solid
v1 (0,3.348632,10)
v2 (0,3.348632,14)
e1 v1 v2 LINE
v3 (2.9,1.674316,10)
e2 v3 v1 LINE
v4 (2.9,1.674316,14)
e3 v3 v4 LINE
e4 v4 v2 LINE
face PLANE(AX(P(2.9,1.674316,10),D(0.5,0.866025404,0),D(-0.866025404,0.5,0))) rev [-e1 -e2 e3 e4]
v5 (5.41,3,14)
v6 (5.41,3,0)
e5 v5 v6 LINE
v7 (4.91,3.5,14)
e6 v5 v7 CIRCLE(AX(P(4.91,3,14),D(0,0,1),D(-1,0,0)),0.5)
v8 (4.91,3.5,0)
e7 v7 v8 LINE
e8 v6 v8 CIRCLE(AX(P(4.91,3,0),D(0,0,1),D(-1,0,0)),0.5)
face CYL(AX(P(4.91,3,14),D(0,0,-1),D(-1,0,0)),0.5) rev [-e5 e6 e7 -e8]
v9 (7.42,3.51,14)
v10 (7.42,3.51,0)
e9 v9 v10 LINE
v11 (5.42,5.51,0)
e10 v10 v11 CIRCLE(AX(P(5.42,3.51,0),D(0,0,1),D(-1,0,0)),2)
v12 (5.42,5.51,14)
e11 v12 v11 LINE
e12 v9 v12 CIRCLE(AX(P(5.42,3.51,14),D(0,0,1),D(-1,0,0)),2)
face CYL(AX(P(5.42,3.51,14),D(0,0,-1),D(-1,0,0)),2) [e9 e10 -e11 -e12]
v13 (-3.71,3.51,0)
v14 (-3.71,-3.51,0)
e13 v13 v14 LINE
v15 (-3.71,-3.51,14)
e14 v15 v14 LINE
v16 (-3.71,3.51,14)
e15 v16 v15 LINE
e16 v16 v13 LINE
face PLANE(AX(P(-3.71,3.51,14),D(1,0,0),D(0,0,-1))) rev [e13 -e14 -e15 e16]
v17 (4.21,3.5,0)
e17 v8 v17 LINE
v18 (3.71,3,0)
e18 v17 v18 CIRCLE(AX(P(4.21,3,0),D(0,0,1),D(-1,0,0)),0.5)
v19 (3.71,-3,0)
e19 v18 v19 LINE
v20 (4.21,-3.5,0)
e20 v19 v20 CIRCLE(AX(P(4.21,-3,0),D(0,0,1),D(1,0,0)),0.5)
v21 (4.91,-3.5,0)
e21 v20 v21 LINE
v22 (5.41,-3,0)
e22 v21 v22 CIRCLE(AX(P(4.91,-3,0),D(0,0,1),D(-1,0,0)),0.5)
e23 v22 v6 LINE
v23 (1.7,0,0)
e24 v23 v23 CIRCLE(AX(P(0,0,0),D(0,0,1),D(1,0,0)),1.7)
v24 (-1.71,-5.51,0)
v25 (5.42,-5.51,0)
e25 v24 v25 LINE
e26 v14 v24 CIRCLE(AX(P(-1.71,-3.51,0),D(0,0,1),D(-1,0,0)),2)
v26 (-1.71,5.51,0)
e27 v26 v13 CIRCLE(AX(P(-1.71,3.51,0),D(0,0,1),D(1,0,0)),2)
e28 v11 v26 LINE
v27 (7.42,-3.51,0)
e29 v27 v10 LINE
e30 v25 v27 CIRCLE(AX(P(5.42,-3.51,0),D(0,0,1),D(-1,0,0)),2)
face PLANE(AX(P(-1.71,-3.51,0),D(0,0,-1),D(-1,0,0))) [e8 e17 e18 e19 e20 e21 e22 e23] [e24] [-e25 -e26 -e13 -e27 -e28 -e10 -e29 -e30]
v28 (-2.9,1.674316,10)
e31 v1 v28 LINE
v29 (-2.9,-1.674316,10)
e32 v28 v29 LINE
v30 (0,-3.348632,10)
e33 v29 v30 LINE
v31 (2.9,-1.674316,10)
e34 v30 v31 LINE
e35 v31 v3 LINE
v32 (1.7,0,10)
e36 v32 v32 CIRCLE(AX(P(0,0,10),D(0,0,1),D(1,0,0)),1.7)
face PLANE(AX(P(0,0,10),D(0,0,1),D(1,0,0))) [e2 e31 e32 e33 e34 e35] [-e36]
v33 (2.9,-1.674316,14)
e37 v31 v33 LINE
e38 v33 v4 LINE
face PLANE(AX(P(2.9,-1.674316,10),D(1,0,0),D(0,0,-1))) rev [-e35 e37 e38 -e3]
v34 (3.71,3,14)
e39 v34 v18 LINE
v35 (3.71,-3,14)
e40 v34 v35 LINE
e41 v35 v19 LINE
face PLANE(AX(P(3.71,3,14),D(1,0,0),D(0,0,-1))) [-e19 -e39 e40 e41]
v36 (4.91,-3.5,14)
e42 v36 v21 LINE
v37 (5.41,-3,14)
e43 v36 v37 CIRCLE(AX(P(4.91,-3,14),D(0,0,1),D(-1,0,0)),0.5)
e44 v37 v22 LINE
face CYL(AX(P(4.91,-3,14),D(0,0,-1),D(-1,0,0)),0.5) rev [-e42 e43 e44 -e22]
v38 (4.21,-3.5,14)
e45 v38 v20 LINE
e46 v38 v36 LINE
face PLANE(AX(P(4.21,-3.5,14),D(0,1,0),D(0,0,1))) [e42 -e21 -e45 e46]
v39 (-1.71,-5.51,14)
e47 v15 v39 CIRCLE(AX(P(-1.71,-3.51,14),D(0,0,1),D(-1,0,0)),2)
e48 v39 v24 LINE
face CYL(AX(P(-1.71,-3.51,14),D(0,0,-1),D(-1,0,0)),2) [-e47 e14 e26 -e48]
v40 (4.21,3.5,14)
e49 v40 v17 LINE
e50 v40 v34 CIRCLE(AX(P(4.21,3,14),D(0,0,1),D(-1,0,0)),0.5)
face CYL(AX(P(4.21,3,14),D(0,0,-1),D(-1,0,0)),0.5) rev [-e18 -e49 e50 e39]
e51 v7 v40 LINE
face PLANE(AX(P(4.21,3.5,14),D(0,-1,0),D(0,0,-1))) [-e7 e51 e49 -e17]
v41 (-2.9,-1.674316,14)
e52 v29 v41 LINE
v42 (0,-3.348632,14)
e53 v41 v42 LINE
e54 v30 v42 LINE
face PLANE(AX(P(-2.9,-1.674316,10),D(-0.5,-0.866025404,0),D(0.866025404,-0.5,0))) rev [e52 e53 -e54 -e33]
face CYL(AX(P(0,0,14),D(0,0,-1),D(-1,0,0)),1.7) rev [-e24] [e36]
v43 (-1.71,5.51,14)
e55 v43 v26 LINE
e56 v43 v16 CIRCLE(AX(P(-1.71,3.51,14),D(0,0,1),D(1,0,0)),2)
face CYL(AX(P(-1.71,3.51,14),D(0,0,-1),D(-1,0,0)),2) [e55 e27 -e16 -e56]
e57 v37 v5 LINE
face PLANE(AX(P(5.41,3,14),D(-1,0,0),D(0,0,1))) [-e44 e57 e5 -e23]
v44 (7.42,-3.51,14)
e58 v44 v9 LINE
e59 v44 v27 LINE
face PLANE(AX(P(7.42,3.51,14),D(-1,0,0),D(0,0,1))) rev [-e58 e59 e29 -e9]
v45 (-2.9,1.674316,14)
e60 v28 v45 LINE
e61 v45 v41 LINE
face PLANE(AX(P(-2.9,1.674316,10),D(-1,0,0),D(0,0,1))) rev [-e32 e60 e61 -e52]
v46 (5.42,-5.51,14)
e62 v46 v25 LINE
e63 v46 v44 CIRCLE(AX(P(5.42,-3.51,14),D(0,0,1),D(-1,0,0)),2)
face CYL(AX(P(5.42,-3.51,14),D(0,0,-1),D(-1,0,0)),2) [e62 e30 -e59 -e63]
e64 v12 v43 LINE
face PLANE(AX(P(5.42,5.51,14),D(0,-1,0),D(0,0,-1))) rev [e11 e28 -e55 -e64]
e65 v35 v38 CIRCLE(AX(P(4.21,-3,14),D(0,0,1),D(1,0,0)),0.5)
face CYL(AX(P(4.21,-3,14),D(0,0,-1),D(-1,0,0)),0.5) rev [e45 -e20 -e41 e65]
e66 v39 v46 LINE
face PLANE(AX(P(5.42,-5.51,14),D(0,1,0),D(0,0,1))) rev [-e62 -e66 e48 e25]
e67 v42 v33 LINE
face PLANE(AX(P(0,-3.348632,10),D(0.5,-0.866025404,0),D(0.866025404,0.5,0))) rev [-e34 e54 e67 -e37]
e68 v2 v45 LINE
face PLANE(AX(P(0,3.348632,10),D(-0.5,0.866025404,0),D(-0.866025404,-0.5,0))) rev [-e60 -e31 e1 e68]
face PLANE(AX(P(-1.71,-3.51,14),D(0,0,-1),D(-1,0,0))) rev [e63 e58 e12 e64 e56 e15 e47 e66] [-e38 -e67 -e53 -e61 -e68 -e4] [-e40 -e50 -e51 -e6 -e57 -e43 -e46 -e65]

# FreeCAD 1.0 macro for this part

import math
import FreeCAD as App
import Part
import Sketcher
Q = App.Units.Quantity

doc = App.newDocument("Part")
body = doc.addObject("PartDesign::Body", "Body")

sketch1 = body.newObject("Sketcher::SketchObject", "Sketch")
sketch1.AttachmentSupport = (doc.getObject("XY_Plane"), [""])
sketch1.MapMode = "FlatFace"
sketch1.addGeometry(Part.LineSegment(App.Vector(5.42, 5.51, 0), App.Vector(-1.71, 5.51, 0)), False)
sketch1.addGeometry(Part.ArcOfCircle(Part.Circle(App.Vector(-1.71, 3.51, 0), App.Vector(0, 0, 1), 2), math.radians(90), math.radians(180)), False)
sketch1.addGeometry(Part.LineSegment(App.Vector(-3.71, 3.51, 0), App.Vector(-3.71, -3.51, 0)), False)
sketch1.addGeometry(Part.ArcOfCircle(Part.Circle(App.Vector(-1.71, -3.51, 0), App.Vector(0, 0, 1), 2), math.radians(-180), math.radians(-90)), False)
sketch1.addGeometry(Part.LineSegment(App.Vector(-1.71, -5.51, 0), App.Vector(5.42, -5.51, 0)), False)
sketch1.addGeometry(Part.ArcOfCircle(Part.Circle(App.Vector(5.42, -3.51, 0), App.Vector(0, 0, 1), 2), math.radians(-90), math.radians(0)), False)
sketch1.addGeometry(Part.LineSegment(App.Vector(7.42, -3.51, 0), App.Vector(7.42, 3.51, 0)), False)
sketch1.addGeometry(Part.ArcOfCircle(Part.Circle(App.Vector(5.42, 3.51, 0), App.Vector(0, 0, 1), 2), math.radians(0), math.radians(90)), False)
sketch1.addGeometry(Part.Circle(App.Vector(0, 0, 0), App.Vector(0, 0, 1), 1.7), False)
sketch1.addGeometry(Part.ArcOfCircle(Part.Circle(App.Vector(4.21, 3, 0), App.Vector(0, 0, 1), 0.5), math.radians(90), math.radians(180)), False)
sketch1.addGeometry(Part.LineSegment(App.Vector(4.21, 3.5, 0), App.Vector(4.91, 3.5, 0)), False)
sketch1.addGeometry(Part.ArcOfCircle(Part.Circle(App.Vector(4.91, 3, 0), App.Vector(0, 0, 1), 0.5), math.radians(0), math.radians(90)), False)
sketch1.addGeometry(Part.LineSegment(App.Vector(5.41, 3, 0), App.Vector(5.41, -3, 0)), False)
sketch1.addGeometry(Part.ArcOfCircle(Part.Circle(App.Vector(4.91, -3, 0), App.Vector(0, 0, 1), 0.5), math.radians(-90), math.radians(0)), False)
sketch1.addGeometry(Part.LineSegment(App.Vector(4.91, -3.5, 0), App.Vector(4.21, -3.5, 0)), False)
sketch1.addGeometry(Part.ArcOfCircle(Part.Circle(App.Vector(4.21, -3, 0), App.Vector(0, 0, 1), 0.5), math.radians(180), math.radians(270)), False)
sketch1.addGeometry(Part.LineSegment(App.Vector(3.71, -3, 0), App.Vector(3.71, 3, 0)), False)
sketch1.addConstraint(Sketcher.Constraint("Tangent", 0, 2, 1, 1))
sketch1.addConstraint(Sketcher.Constraint("Tangent", 1, 2, 2, 1))
sketch1.addConstraint(Sketcher.Constraint("Tangent", 2, 2, 3, 1))
sketch1.addConstraint(Sketcher.Constraint("Tangent", 3, 2, 4, 1))
sketch1.addConstraint(Sketcher.Constraint("Tangent", 4, 2, 5, 1))
sketch1.addConstraint(Sketcher.Constraint("Tangent", 5, 2, 6, 1))
sketch1.addConstraint(Sketcher.Constraint("Tangent", 6, 2, 7, 1))
sketch1.addConstraint(Sketcher.Constraint("Tangent", 7, 2, 0, 1))
sketch1.addConstraint(Sketcher.Constraint("Tangent", 9, 1, 10, 1))
sketch1.addConstraint(Sketcher.Constraint("Tangent", 10, 2, 11, 2))
sketch1.addConstraint(Sketcher.Constraint("Tangent", 11, 1, 12, 1))
sketch1.addConstraint(Sketcher.Constraint("Tangent", 12, 2, 13, 2))
sketch1.addConstraint(Sketcher.Constraint("Tangent", 13, 1, 14, 1))
sketch1.addConstraint(Sketcher.Constraint("Tangent", 14, 2, 15, 2))
sketch1.addConstraint(Sketcher.Constraint("Tangent", 15, 1, 16, 1))
sketch1.addConstraint(Sketcher.Constraint("Tangent", 16, 2, 9, 2))
sketch1.addConstraint(Sketcher.Constraint("Horizontal", 0))
sketch1.addConstraint(Sketcher.Constraint("Vertical", 2))
sketch1.addConstraint(Sketcher.Constraint("Horizontal", 4))
sketch1.addConstraint(Sketcher.Constraint("Vertical", 6))
sketch1.addConstraint(Sketcher.Constraint("Horizontal", 10))
sketch1.addConstraint(Sketcher.Constraint("Vertical", 12))
sketch1.addConstraint(Sketcher.Constraint("Horizontal", 14))
sketch1.addConstraint(Sketcher.Constraint("Vertical", 16))
sketch1.addConstraint(Sketcher.Constraint("Coincident", 8, 3, -1, 1))
sketch1.addConstraint(Sketcher.Constraint("Equal", 1, 3))
sketch1.addConstraint(Sketcher.Constraint("Equal", 3, 5))
sketch1.addConstraint(Sketcher.Constraint("Equal", 5, 7))
sketch1.addConstraint(Sketcher.Constraint("Equal", 9, 11))
sketch1.addConstraint(Sketcher.Constraint("Equal", 11, 13))
sketch1.addConstraint(Sketcher.Constraint("Equal", 13, 15))
sketch1.addConstraint(Sketcher.Constraint("Radius", 1, Q("2 mm")))
sketch1.addConstraint(Sketcher.Constraint("Diameter", 8, Q("3.4 mm")))
sketch1.addConstraint(Sketcher.Constraint("Radius", 9, Q("0.5 mm")))
sketch1.addConstraint(Sketcher.Constraint("DistanceY", 12, 2, 12, 1, Q("6 mm")))
sketch1.addConstraint(Sketcher.Constraint("DistanceX", 10, 1, 10, 2, Q("0.7 mm")))
sketch1.addConstraint(Sketcher.Constraint("DistanceY", -1, 1, 9, 3, Q("3 mm")))
sketch1.addConstraint(Sketcher.Constraint("DistanceX", 0, 2, 0, 1, Q("7.13 mm")))
sketch1.addConstraint(Sketcher.Constraint("DistanceY", 2, 2, 2, 1, Q("7.02 mm")))
sketch1.addConstraint(Sketcher.Constraint("DistanceX", 1, 3, -1, 1, Q("1.71 mm")))
sketch1.addConstraint(Sketcher.Constraint("DistanceY", -1, 1, 1, 3, Q("3.51 mm")))
sketch1.addConstraint(Sketcher.Constraint("DistanceX", -1, 1, 9, 3, Q("4.21 mm")))
pad1 = body.newObject("PartDesign::Pad", "Pad")
pad1.Profile = sketch1
pad1.Length = 14

sketch2 = body.newObject("Sketcher::SketchObject", "Sketch001")
sketch2.AttachmentSupport = (doc.getObject("XY_Plane"), [""])
sketch2.MapMode = "FlatFace"
sketch2.AttachmentOffset = App.Placement(App.Vector(0, 0, 14), App.Rotation())
sketch2.addGeometry(Part.LineSegment(App.Vector(0, 3.3, 0), App.Vector(-2.9, 1.7, 0)), False)
sketch2.addGeometry(Part.LineSegment(App.Vector(-2.9, 1.7, 0), App.Vector(-2.9, -1.7, 0)), False)
sketch2.addGeometry(Part.LineSegment(App.Vector(-2.9, -1.7, 0), App.Vector(0, -3.3, 0)), False)
sketch2.addGeometry(Part.LineSegment(App.Vector(0, -3.3, 0), App.Vector(2.9, -1.7, 0)), False)
sketch2.addGeometry(Part.LineSegment(App.Vector(2.9, -1.7, 0), App.Vector(2.9, 1.7, 0)), False)
sketch2.addGeometry(Part.LineSegment(App.Vector(2.9, 1.7, 0), App.Vector(0, 3.3, 0)), False)
sketch2.addConstraint(Sketcher.Constraint("Coincident", 0, 2, 1, 1))
sketch2.addConstraint(Sketcher.Constraint("Coincident", 1, 2, 2, 1))
sketch2.addConstraint(Sketcher.Constraint("Coincident", 2, 2, 3, 1))
sketch2.addConstraint(Sketcher.Constraint("Coincident", 3, 2, 4, 1))
sketch2.addConstraint(Sketcher.Constraint("Coincident", 4, 2, 5, 1))
sketch2.addConstraint(Sketcher.Constraint("Coincident", 5, 2, 0, 1))
sketch2.addConstraint(Sketcher.Constraint("Vertical", 1))
sketch2.addConstraint(Sketcher.Constraint("Vertical", 4))
sketch2.addConstraint(Sketcher.Constraint("Symmetric", 0, 2, 3, 2, -1, 1))
sketch2.addConstraint(Sketcher.Constraint("Symmetric", 2, 2, 5, 2, -1, 1))
sketch2.addConstraint(Sketcher.Constraint("PointOnObject", 2, 2, -2))
sketch2.addConstraint(Sketcher.Constraint("Parallel", 2, 5))
sketch2.addConstraint(Sketcher.Constraint("Horizontal", 1, 2, 3, 2))
sketch2.addConstraint(Sketcher.Constraint("Angle", 0, Q("-150 deg")))
sketch2.addConstraint(Sketcher.Constraint("DistanceX", 0, 2, -1, 1, Q("2.9 mm")))
sketch2.addConstraint(Sketcher.Constraint("DistanceY", 1, 2, 1, 1, Q("3.348632 mm")))
pocket1 = body.newObject("PartDesign::Pocket", "Pocket")
pocket1.Profile = sketch2
pocket1.Length = 4

doc.recompute()
